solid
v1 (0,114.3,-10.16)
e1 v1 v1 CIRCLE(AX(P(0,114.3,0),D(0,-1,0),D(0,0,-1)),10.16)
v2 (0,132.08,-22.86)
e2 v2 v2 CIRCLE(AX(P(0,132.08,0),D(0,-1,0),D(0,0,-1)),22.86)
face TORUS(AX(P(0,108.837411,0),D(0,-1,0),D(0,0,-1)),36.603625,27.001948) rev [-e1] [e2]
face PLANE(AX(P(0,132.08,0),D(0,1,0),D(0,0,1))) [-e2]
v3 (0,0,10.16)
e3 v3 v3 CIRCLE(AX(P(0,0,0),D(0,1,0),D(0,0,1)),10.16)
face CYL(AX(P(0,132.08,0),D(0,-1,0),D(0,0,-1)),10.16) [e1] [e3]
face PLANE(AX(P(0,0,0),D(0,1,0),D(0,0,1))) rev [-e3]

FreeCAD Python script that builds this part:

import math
import FreeCAD as App
import Part
import Sketcher
Q = App.Units.Quantity

doc = App.newDocument("Part")
body = doc.addObject("PartDesign::Body", "Body")

sketch1 = doc.addObject("Sketcher::SketchObject", "Sketch")
body.addObject(sketch1)
sketch1.AttachmentSupport = (doc.XZ_Plane, [""])
sketch1.MapMode = "FlatFace"
sketch1.addGeometry(Part.Circle(App.Vector(0, 0, 0), App.Vector(0, 0, 1), 10.16), False)
sketch1.addConstraint([
    Sketcher.Constraint("Coincident", 0, 3, -1, 1),
    Sketcher.Constraint("Diameter", 0, Q("0.8 in")),
])
pad1 = doc.addObject("PartDesign::Pad", "Pad")
body.addObject(pad1)
pad1.Profile = sketch1
pad1.Length = Q("5.2 in")
pad1.Reversed = True

sketch2 = doc.addObject("Sketcher::SketchObject", "Sketch001")
body.addObject(sketch2)
sketch2.AttachmentSupport = (doc.XY_Plane, [""])
sketch2.MapMode = "FlatFace"
sketch2.addGeometry([
    Part.LineSegment(App.Vector(10.16, 132.08, 0), App.Vector(10.16, 114.3, 0)),
    Part.ArcOfCircle(Part.Circle(App.Vector(36.603625, 108.837411, 0), App.Vector(0, 0, 1), 27.001948), math.radians(120.59634), math.radians(168.328305)),
    Part.LineSegment(App.Vector(22.86, 132.08, 0), App.Vector(10.16, 132.08, 0)),
], False)
sketch2.addConstraint([
    Sketcher.Constraint("Coincident", 0, 2, 1, 2),
    Sketcher.Constraint("Coincident", 1, 1, 2, 1),
    Sketcher.Constraint("Coincident", 2, 2, 0, 1),
    Sketcher.Constraint("Vertical", 0),
    Sketcher.Constraint("Horizontal", 2),
    Sketcher.Constraint("DistanceX", 2, 2, 2, 1, Q("0.5 in")),
    Sketcher.Constraint("DistanceY", 0, 2, 0, 1, Q("0.7 in")),
    Sketcher.Constraint("DistanceX", -1, 1, 0, 2, Q("0.4 in")),
    Sketcher.Constraint("DistanceY", -1, 1, 0, 2, Q("4.5 in")),
    Sketcher.Constraint("Radius", 1, Q("27.001948 mm")),
])
revolution = doc.addObject("PartDesign::Revolution", "Revolution")
body.addObject(revolution)
revolution.Profile = sketch2
revolution.ReferenceAxis = (sketch2, ["V_Axis"])
revolution.Angle = 360

doc.recompute()
